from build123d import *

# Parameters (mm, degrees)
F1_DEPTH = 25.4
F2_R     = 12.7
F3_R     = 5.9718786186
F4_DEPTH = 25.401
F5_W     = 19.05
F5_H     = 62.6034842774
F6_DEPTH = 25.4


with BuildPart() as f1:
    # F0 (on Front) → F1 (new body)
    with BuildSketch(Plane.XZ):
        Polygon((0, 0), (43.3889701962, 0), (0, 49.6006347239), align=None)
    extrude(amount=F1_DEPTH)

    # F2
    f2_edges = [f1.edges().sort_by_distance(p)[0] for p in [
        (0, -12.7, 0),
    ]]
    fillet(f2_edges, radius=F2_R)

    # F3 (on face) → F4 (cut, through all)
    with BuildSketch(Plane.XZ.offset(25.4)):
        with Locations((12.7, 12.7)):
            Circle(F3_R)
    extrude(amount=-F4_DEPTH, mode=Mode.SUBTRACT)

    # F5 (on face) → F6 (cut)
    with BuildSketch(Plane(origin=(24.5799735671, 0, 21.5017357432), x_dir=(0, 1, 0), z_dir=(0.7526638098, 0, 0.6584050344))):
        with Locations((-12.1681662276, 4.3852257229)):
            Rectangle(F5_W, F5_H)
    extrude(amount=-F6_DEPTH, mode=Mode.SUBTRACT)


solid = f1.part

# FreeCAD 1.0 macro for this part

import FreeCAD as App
import Part
import Sketcher

V = App.Vector
Q = App.Units.Quantity


def edges_at(feature, points):
    """Names of the edges that pass closest to the given points."""
    edges = feature.Shape.Edges
    near = lambda p: min(range(len(edges)), key=lambda i: edges[i].distToShape(Part.Vertex(*p))[0])
    return sorted({f"Edge{near(p) + 1}" for p in points})

doc = App.newDocument("Part")
body = doc.addObject("PartDesign::Body", "Body")

# Sketch on XZ plane
sketch1 = doc.addObject("Sketcher::SketchObject", "Sketch")
body.addObject(sketch1)
sketch1.AttachmentSupport = (doc.XZ_Plane, [""])
sketch1.MapMode = "FlatFace"
sketch1.addGeometry(Part.LineSegment(V(0, 0, 0), V(43.38897, 0, 0)), False)
sketch1.addGeometry(Part.LineSegment(V(43.38897, 0, 0), V(0, 49.600635, 0)), False)
sketch1.addGeometry(Part.LineSegment(V(0, 49.600635, 0), V(0, 0, 0)), False)
sketch1.addConstraint(Sketcher.Constraint("Coincident", 0, 2, 1, 1))
sketch1.addConstraint(Sketcher.Constraint("Coincident", 1, 2, 2, 1))
sketch1.addConstraint(Sketcher.Constraint("Coincident", 2, 2, 0, 1))
sketch1.addConstraint(Sketcher.Constraint("Horizontal", 0))
sketch1.addConstraint(Sketcher.Constraint("Vertical", 2))
sketch1.addConstraint(Sketcher.Constraint("Coincident", 2, 2, -1, 1))
sketch1.addConstraint(Sketcher.Constraint("DistanceX", 0, 1, 0, 2, Q("43.38897 mm")))
sketch1.addConstraint(Sketcher.Constraint("Distance", 1, Q("65.900119 mm")))
pad1 = doc.addObject("PartDesign::Pad", "Pad")
body.addObject(pad1)
pad1.Profile = sketch1
pad1.Length = Q("1 in")
doc.recompute()

fillet = doc.addObject("PartDesign::Fillet", "Fillet")
body.addObject(fillet)
fillet.Base = (pad1, edges_at(pad1, [(0, -12.7, 0)]))
fillet.Radius = Q("0.5 in")

# Sketch on XZ plane
sketch2 = doc.addObject("Sketcher::SketchObject", "Sketch001")
body.addObject(sketch2)
sketch2.AttachmentSupport = (doc.XZ_Plane, [""])
sketch2.MapMode = "FlatFace"
sketch2.AttachmentOffset = App.Placement(V(0, 0, 1 * 25.4), App.Rotation())
sketch2.addGeometry(Part.Circle(V(12.7, 12.7, 0), V(0, 0, 1), 5.971879), False)
sketch2.addConstraint(Sketcher.Constraint("DistanceX", -1, 1, 0, 3, Q("0.5 in")))
sketch2.addConstraint(Sketcher.Constraint("DistanceY", -1, 1, 0, 3, Q("0.5 in")))
sketch2.addConstraint(Sketcher.Constraint("Diameter", 0, Q("11.943757 mm")))
pocket1 = doc.addObject("PartDesign::Pocket", "Pocket")
body.addObject(pocket1)
pocket1.Profile = sketch2
pocket1.Type = "ThroughAll"

# Sketch on an angled plane
sketch3 = doc.addObject("Sketcher::SketchObject", "Sketch002")
body.addObject(sketch3)
sketch3.Placement = App.Placement(V(24.579974, 0, 21.501736), App.Rotation(V(0, 1, 0), V(-0.658405034, 0, 0.75266381), V(0.75266381, 0, 0.658405034), "ZXY"))
sketch3.addGeometry(Part.LineSegment(V(-21.693166, 35.686968, 0), V(-21.693166, -26.916516, 0)), False)
sketch3.addGeometry(Part.LineSegment(V(-21.693166, -26.916516, 0), V(-2.643166, -26.916516, 0)), False)
sketch3.addGeometry(Part.LineSegment(V(-2.643166, -26.916516, 0), V(-2.643166, 35.686968, 0)), False)
sketch3.addGeometry(Part.LineSegment(V(-2.643166, 35.686968, 0), V(-21.693166, 35.686968, 0)), False)
sketch3.addConstraint(Sketcher.Constraint("Coincident", 0, 2, 1, 1))
sketch3.addConstraint(Sketcher.Constraint("Coincident", 1, 2, 2, 1))
sketch3.addConstraint(Sketcher.Constraint("Coincident", 2, 2, 3, 1))
sketch3.addConstraint(Sketcher.Constraint("Coincident", 3, 2, 0, 1))
sketch3.addConstraint(Sketcher.Constraint("Vertical", 0))
sketch3.addConstraint(Sketcher.Constraint("Horizontal", 1))
sketch3.addConstraint(Sketcher.Constraint("Vertical", 2))
sketch3.addConstraint(Sketcher.Constraint("Horizontal", 3))
sketch3.addConstraint(Sketcher.Constraint("DistanceX", 1, 1, 1, 2, Q("0.75 in")))
sketch3.addConstraint(Sketcher.Constraint("DistanceY", 0, 2, 0, 1, Q("62.603484 mm")))
sketch3.addConstraint(Sketcher.Constraint("DistanceX", 0, 2, -1, 1, Q("21.693166 mm")))
sketch3.addConstraint(Sketcher.Constraint("DistanceY", 0, 2, -1, 1, Q("26.916516 mm")))
pocket2 = doc.addObject("PartDesign::Pocket", "Pocket001")
body.addObject(pocket2)
pocket2.Profile = sketch3
pocket2.Length = Q("1 in")

doc.recompute()
